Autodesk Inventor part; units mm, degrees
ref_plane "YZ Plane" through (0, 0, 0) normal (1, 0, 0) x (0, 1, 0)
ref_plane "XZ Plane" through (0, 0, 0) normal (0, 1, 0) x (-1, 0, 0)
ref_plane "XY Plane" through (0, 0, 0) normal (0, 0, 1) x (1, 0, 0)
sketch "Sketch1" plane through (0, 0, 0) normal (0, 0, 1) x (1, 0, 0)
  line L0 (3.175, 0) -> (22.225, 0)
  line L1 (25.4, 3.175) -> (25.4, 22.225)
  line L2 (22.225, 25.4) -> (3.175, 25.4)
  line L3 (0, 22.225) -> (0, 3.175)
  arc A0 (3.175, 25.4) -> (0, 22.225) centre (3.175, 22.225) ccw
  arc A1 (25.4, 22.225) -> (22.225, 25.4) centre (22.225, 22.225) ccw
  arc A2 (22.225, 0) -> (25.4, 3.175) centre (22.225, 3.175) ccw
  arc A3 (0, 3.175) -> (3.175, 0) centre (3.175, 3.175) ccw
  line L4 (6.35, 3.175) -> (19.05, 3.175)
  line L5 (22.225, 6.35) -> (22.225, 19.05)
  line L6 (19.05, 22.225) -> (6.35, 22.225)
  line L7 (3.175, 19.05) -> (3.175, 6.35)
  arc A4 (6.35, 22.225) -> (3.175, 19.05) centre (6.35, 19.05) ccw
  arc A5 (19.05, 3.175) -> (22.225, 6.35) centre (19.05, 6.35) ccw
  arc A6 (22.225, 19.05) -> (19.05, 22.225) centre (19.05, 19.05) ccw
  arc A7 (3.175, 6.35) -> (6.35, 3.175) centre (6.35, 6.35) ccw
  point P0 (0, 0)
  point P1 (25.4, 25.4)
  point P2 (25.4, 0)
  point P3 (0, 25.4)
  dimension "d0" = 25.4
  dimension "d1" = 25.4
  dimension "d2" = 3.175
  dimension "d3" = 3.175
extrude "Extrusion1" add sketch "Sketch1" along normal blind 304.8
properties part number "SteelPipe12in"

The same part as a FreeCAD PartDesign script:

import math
import FreeCAD as App
import Part
import Sketcher

V = App.Vector
Q = App.Units.Quantity

doc = App.newDocument("Part")
body = doc.addObject("PartDesign::Body", "Body")

# Sketch on XY plane
sketch1 = body.newObject("Sketcher::SketchObject", "Sketch")
sketch1.AttachmentSupport = (doc.getObject("XY_Plane"), [""])
sketch1.MapMode = "FlatFace"
sketch1.addGeometry([
    Part.ArcOfCircle(Part.Circle(V(3.2, 3.2, 0), V(0, 0, 1), 3.2), math.radians(180), math.radians(270)),  # 0
    Part.LineSegment(V(3.2, 0, 0), V(22.2, 0, 0)),  # 1
    Part.ArcOfCircle(Part.Circle(V(22.2, 3.2, 0), V(0, 0, 1), 3.2), math.radians(-90), math.radians(0)),  # 2
    Part.LineSegment(V(25.4, 3.2, 0), V(25.4, 22.2, 0)),  # 3
    Part.ArcOfCircle(Part.Circle(V(22.2, 22.2, 0), V(0, 0, 1), 3.2), math.radians(0), math.radians(90)),  # 4
    Part.LineSegment(V(22.2, 25.4, 0), V(3.2, 25.4, 0)),  # 5
    Part.ArcOfCircle(Part.Circle(V(3.2, 22.2, 0), V(0, 0, 1), 3.2), math.radians(90), math.radians(180)),  # 6
    Part.LineSegment(V(0, 22.2, 0), V(0, 3.2, 0)),  # 7
    Part.LineSegment(V(19.1, 3.2, 0), V(6.3, 3.2, 0)),  # 8
    Part.ArcOfCircle(Part.Circle(V(6.3, 6.3, 0), V(0, 0, 1), 3.2), math.radians(180), math.radians(270)),  # 9
    Part.LineSegment(V(3.2, 6.3, 0), V(3.2, 19.1, 0)),  # 10
    Part.ArcOfCircle(Part.Circle(V(6.3, 19.1, 0), V(0, 0, 1), 3.2), math.radians(90), math.radians(180)),  # 11
    Part.LineSegment(V(6.3, 22.2, 0), V(19.1, 22.2, 0)),  # 12
    Part.ArcOfCircle(Part.Circle(V(19.1, 19.1, 0), V(0, 0, 1), 3.2), math.radians(0), math.radians(90)),  # 13
    Part.LineSegment(V(22.2, 19.1, 0), V(22.2, 6.3, 0)),  # 14
    Part.ArcOfCircle(Part.Circle(V(19.1, 6.3, 0), V(0, 0, 1), 3.2), math.radians(-90), math.radians(0)),  # 15
], False)
sketch1.addConstraint([
    Sketcher.Constraint("Tangent", 0, 2, 1, 1),
    Sketcher.Constraint("Tangent", 1, 2, 2, 1),
    Sketcher.Constraint("Tangent", 2, 2, 3, 1),
    Sketcher.Constraint("Tangent", 3, 2, 4, 1),
    Sketcher.Constraint("Tangent", 4, 2, 5, 1),
    Sketcher.Constraint("Tangent", 5, 2, 6, 1),
    Sketcher.Constraint("Tangent", 6, 2, 7, 1),
    Sketcher.Constraint("Tangent", 7, 2, 0, 1),
    Sketcher.Constraint("Tangent", 8, 2, 9, 2),
    Sketcher.Constraint("Tangent", 9, 1, 10, 1),
    Sketcher.Constraint("Tangent", 10, 2, 11, 2),
    Sketcher.Constraint("Tangent", 11, 1, 12, 1),
    Sketcher.Constraint("Tangent", 12, 2, 13, 2),
    Sketcher.Constraint("Tangent", 13, 1, 14, 1),
    Sketcher.Constraint("Tangent", 14, 2, 15, 2),
    Sketcher.Constraint("Tangent", 15, 1, 8, 1),
    Sketcher.Constraint("Horizontal", 1),
    Sketcher.Constraint("Vertical", 3),
    Sketcher.Constraint("Horizontal", 5),
    Sketcher.Constraint("Vertical", 7),
    Sketcher.Constraint("Horizontal", 8),
    Sketcher.Constraint("Vertical", 10),
    Sketcher.Constraint("Horizontal", 12),
    Sketcher.Constraint("Vertical", 14),
    Sketcher.Constraint("Equal", 0, 2),
    Sketcher.Constraint("Equal", 2, 4),
    Sketcher.Constraint("Equal", 4, 6),
    Sketcher.Constraint("Equal", 6, 9),
    Sketcher.Constraint("Equal", 9, 11),
    Sketcher.Constraint("Equal", 11, 13),
    Sketcher.Constraint("Equal", 13, 15),
    Sketcher.Constraint("PointOnObject", 0, 2, -1),
    Sketcher.Constraint("PointOnObject", 6, 2, -2),
    Sketcher.Constraint("Horizontal", 7, 2, 8, 2),
    Sketcher.Constraint("Horizontal", 6, 2, 11, 1),
    Sketcher.Constraint("Vertical", 5, 2, 9, 1),
    Sketcher.Constraint("Vertical", 4, 2, 13, 1),
    Sketcher.Constraint("Equal", 5, 3),
    Sketcher.Constraint("DistanceX", -1, 1, 2, 2, Q("1 in")),
    Sketcher.Constraint("Radius", 0, Q("0.125 in")),
])
pad1 = body.newObject("PartDesign::Pad", "Pad")
pad1.Profile = sketch1
pad1.Length = Q("12 in")

doc.recompute()
